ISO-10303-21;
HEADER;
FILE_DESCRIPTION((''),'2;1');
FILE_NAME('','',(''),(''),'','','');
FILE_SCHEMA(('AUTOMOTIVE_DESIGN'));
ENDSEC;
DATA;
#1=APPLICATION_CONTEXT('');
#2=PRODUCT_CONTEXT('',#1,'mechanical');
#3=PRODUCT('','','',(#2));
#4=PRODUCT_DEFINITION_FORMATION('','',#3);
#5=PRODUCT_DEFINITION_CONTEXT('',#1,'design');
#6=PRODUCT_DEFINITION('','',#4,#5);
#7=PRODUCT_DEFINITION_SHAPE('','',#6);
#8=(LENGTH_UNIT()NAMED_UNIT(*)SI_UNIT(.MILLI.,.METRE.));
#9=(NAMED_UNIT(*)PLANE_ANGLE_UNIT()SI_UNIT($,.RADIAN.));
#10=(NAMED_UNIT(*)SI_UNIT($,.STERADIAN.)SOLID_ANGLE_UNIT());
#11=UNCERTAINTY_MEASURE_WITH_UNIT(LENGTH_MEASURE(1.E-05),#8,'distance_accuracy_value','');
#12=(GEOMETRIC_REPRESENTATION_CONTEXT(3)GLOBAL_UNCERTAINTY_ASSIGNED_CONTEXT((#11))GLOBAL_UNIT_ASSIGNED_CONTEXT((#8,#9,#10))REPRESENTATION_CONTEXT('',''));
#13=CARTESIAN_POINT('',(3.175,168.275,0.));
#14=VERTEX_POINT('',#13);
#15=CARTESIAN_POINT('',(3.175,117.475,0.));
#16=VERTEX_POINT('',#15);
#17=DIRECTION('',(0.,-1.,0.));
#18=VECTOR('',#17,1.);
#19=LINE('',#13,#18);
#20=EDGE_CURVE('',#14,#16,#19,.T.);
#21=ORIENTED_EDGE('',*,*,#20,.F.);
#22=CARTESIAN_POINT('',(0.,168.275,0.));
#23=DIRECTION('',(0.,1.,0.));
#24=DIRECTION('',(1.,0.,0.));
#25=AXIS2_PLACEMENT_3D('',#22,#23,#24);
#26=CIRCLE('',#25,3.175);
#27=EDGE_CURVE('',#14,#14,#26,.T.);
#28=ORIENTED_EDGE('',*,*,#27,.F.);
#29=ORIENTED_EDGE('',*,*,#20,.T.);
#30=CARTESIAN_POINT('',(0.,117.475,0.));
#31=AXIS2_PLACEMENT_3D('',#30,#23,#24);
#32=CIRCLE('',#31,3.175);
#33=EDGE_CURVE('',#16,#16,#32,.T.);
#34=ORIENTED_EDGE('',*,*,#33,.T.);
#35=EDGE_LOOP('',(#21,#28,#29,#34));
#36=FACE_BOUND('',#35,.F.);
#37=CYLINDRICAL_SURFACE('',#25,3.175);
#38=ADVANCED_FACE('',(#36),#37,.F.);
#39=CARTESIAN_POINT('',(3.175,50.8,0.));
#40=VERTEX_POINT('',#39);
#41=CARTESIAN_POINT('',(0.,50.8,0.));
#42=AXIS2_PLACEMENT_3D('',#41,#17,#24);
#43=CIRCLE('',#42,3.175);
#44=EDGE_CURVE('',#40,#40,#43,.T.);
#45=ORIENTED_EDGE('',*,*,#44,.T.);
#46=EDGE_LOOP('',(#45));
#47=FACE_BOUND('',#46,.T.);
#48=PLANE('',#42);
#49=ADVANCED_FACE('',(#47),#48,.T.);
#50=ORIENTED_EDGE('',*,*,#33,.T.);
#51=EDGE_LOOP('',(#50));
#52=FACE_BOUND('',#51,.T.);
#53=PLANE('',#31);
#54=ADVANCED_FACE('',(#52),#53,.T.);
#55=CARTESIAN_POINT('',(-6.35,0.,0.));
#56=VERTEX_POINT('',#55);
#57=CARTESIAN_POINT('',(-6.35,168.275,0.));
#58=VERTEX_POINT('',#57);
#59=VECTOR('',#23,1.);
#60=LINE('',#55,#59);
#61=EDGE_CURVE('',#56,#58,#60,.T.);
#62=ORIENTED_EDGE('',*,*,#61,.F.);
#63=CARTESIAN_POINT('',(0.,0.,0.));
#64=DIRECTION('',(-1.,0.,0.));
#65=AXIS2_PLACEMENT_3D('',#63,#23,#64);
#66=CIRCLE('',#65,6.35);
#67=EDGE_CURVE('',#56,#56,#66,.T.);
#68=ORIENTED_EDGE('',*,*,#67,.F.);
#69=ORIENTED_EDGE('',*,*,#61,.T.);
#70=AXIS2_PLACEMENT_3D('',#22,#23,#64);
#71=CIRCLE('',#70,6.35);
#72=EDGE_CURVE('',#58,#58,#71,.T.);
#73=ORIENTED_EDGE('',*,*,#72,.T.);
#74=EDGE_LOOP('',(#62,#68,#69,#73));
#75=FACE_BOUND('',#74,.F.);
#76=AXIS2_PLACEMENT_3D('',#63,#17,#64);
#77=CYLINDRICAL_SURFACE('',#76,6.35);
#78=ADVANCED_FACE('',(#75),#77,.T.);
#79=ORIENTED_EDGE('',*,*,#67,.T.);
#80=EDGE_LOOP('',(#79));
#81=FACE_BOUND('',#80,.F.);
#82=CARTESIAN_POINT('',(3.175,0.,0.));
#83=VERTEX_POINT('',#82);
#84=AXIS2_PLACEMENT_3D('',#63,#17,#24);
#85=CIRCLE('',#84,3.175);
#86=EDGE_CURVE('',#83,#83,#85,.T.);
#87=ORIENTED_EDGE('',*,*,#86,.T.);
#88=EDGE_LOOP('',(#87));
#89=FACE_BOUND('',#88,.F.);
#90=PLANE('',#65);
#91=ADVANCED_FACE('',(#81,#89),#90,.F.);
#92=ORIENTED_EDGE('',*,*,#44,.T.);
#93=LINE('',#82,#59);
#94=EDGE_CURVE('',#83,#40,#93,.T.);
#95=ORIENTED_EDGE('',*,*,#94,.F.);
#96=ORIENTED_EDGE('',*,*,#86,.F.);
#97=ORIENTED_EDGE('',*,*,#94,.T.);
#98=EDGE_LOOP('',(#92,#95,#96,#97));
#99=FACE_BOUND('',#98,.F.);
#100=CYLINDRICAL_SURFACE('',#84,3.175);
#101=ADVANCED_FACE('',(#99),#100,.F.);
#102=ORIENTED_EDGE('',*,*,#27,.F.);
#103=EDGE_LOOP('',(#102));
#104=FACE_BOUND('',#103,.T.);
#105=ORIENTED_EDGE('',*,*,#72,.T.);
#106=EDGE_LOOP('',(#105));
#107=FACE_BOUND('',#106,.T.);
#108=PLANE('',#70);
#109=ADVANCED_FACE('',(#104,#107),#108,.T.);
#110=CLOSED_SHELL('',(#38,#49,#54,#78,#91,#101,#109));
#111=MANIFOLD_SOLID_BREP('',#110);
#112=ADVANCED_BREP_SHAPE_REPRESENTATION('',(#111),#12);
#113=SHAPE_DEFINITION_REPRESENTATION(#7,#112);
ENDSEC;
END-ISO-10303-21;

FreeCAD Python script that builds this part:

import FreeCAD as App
import Part
import Sketcher
Q = App.Units.Quantity

doc = App.newDocument("Part")
body = doc.addObject("PartDesign::Body", "Body")

# Sketch on XZ plane
sketch1 = body.newObject("Sketcher::SketchObject", "Sketch")
sketch1.AttachmentSupport = (doc.getObject("XZ_Plane"), [""])
sketch1.MapMode = "FlatFace"
sketch1.addGeometry(Part.Circle(App.Vector(0, 0, 0), App.Vector(0, 0, 1), 6), False)
sketch1.addConstraint([
    Sketcher.Constraint("Coincident", 0, 3, -1, 1),
    Sketcher.Constraint("Diameter", 0, Q("0.5 in")),
])
pad1 = body.newObject("PartDesign::Pad", "Pad")
pad1.Profile = sketch1
pad1.Length = Q("6.625 in")
pad1.Reversed = True

# Sketch on XZ plane
sketch2 = body.newObject("Sketcher::SketchObject", "Sketch001")
sketch2.AttachmentSupport = (doc.getObject("XZ_Plane"), [""])
sketch2.MapMode = "FlatFace"
sketch2.addGeometry(Part.Circle(App.Vector(0, 0, 0), App.Vector(0, 0, 1), 3.2), False)
sketch2.addConstraint([
    Sketcher.Constraint("Coincident", 0, 3, -1, 1),
    Sketcher.Constraint("Diameter", 0, Q("0.25 in")),
])
pocket1 = body.newObject("PartDesign::Pocket", "Pocket")
pocket1.Profile = sketch2
pocket1.Length = Q("2 in")

# Sketch on XZ plane
sketch3 = body.newObject("Sketcher::SketchObject", "Sketch002")
sketch3.AttachmentSupport = (doc.getObject("XZ_Plane"), [""])
sketch3.MapMode = "FlatFace"
sketch3.AttachmentOffset = App.Placement(App.Vector(0, 0, -6.625 * 25.4), App.Rotation())
sketch3.addGeometry(Part.Circle(App.Vector(0, 0, 0), App.Vector(0, 0, 1), 3.2), False)
sketch3.addConstraint([
    Sketcher.Constraint("Coincident", 0, 3, -1, 1),
    Sketcher.Constraint("Diameter", 0, Q("0.25 in")),
])
pocket2 = body.newObject("PartDesign::Pocket", "Pocket001")
pocket2.Profile = sketch3
pocket2.Length = Q("2 in")
pocket2.Reversed = True

doc.recompute()
